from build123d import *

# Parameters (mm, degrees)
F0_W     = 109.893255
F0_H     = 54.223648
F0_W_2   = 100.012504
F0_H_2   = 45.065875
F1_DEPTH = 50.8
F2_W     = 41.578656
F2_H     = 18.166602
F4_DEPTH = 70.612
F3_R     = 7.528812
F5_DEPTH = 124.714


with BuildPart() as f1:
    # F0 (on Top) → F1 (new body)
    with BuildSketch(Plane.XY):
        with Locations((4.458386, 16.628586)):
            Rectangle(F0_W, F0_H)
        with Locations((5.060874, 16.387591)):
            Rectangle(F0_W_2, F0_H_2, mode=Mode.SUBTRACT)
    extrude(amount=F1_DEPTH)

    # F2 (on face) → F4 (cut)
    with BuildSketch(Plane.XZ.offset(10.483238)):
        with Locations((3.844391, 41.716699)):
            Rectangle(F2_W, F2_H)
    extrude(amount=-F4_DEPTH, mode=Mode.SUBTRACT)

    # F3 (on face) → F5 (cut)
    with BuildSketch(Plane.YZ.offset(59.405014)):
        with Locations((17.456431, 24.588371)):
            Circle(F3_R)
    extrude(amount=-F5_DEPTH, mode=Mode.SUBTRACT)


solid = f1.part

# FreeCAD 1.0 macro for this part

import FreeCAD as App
import Part
import Sketcher

V = App.Vector
Q = App.Units.Quantity


def add_polygon(sketch, points):
    """Adds a closed chain of lines whose ends are joined by coincident constraints."""
    first, n = sketch.GeometryCount, len(points)
    for a, b in zip(points, points[1:] + points[:1]):
        sketch.addGeometry(Part.LineSegment(App.Vector(*a, 0), App.Vector(*b, 0)), False)
    for i in range(n):
        sketch.addConstraint(Sketcher.Constraint("Coincident", first + i, 2, first + (i + 1) % n, 1))

doc = App.newDocument("Part")
body = doc.addObject("PartDesign::Body", "Body")

sketch1 = body.newObject("Sketcher::SketchObject", "Sketch")
sketch1.AttachmentSupport = (doc.getObject("XY_Plane"), [""])
sketch1.MapMode = "FlatFace"
add_polygon(sketch1, [(-50, 44), (-50, -10), (59, -10), (59, 44)])
add_polygon(sketch1, [(55, -6), (-45, -6), (-45, 39), (55, 39)])
sketch1.addConstraint([
    Sketcher.Constraint("Vertical", 0),
    Sketcher.Constraint("Horizontal", 1),
    Sketcher.Constraint("Vertical", 2),
    Sketcher.Constraint("Horizontal", 3),
    Sketcher.Constraint("Horizontal", 4),
    Sketcher.Constraint("Vertical", 5),
    Sketcher.Constraint("Horizontal", 6),
    Sketcher.Constraint("Vertical", 7),
    Sketcher.Constraint("DistanceX", 4, 2, 4, 1, Q("3.9375002 in")),
    Sketcher.Constraint("DistanceX", 1, 1, 1, 2, Q("109.893255 mm")),
    Sketcher.Constraint("DistanceY", 0, 2, 0, 1, Q("54.223648 mm")),
    Sketcher.Constraint("DistanceY", 5, 1, 5, 2, Q("45.065875 mm")),
    Sketcher.Constraint("DistanceX", 0, 2, -1, 1, Q("50.488242 mm")),
    Sketcher.Constraint("DistanceY", -1, 1, 2, 2, Q("43.74041 mm")),
    Sketcher.Constraint("DistanceY", -1, 1, 5, 2, Q("38.920529 mm")),
    Sketcher.Constraint("DistanceX", 4, 2, 1, 2, Q("104.350392 mm")),
])
pad1 = body.newObject("PartDesign::Pad", "Pad")
pad1.Profile = sketch1
pad1.Length = Q("2 in")

sketch2 = body.newObject("Sketcher::SketchObject", "Sketch001")
sketch2.AttachmentSupport = (doc.getObject("XZ_Plane"), [""])
sketch2.MapMode = "FlatFace"
sketch2.AttachmentOffset = App.Placement(V(0, 0, 10.483238), App.Rotation())
add_polygon(sketch2, [(-17, 51), (-17, 33), (25, 33), (25, 51)])
sketch2.addConstraint([
    Sketcher.Constraint("Vertical", 0),
    Sketcher.Constraint("Horizontal", 1),
    Sketcher.Constraint("Vertical", 2),
    Sketcher.Constraint("Horizontal", 3),
    Sketcher.Constraint("DistanceY", -1, 1, 2, 2, Q("2 in")),
    Sketcher.Constraint("DistanceY", 0, 2, 0, 1, Q("18.166602 mm")),
    Sketcher.Constraint("DistanceX", 1, 1, 1, 2, Q("41.578656 mm")),
    Sketcher.Constraint("DistanceX", -1, 1, 1, 2, Q("24.633719 mm")),
])
pocket1 = body.newObject("PartDesign::Pocket", "Pocket")
pocket1.Profile = sketch2
pocket1.Length = Q("2.78 in")

sketch3 = body.newObject("Sketcher::SketchObject", "Sketch002")
sketch3.AttachmentSupport = (doc.getObject("YZ_Plane"), [""])
sketch3.MapMode = "FlatFace"
sketch3.AttachmentOffset = App.Placement(V(0, 0, 59.405014), App.Rotation())
sketch3.addGeometry(Part.Circle(V(17, 25, 0), V(0, 0, 1), 8), False)
sketch3.addConstraint([
    Sketcher.Constraint("Diameter", 0, Q("15.057624 mm")),
    Sketcher.Constraint("DistanceX", -1, 1, 0, 3, Q("17.456431 mm")),
    Sketcher.Constraint("DistanceY", -1, 1, 0, 3, Q("24.588371 mm")),
])
pocket2 = body.newObject("PartDesign::Pocket", "Pocket001")
pocket2.Profile = sketch3
pocket2.Length = Q("4.91 in")

doc.recompute()
